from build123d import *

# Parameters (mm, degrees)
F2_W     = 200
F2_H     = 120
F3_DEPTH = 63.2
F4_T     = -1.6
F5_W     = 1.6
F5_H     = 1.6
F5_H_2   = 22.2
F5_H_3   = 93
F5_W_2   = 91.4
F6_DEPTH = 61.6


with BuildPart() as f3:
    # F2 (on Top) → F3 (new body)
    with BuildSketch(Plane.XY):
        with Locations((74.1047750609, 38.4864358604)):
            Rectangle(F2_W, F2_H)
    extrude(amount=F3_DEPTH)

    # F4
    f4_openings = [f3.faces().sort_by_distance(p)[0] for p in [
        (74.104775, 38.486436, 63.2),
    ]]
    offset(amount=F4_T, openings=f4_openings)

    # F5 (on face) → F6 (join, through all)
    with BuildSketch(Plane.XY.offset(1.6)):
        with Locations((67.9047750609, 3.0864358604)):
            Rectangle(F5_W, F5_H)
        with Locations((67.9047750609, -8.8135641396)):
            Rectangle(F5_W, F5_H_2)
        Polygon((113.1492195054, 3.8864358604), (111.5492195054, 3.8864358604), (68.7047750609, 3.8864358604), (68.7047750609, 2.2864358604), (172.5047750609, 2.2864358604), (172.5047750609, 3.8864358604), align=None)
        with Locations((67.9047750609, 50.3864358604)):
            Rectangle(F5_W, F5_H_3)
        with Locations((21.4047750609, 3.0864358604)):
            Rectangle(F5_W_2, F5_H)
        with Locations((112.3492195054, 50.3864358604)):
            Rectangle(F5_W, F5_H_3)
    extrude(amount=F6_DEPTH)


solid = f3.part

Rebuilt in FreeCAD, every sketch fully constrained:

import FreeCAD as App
import Part
import Sketcher

V = App.Vector
Q = App.Units.Quantity


def faces_at(feature, points):
    """Names of the faces that lie closest to the given points."""
    faces = feature.Shape.Faces
    near = lambda p: min(range(len(faces)), key=lambda i: faces[i].distToShape(Part.Vertex(*p))[0])
    return sorted({f"Face{near(p) + 1}" for p in points})


def add_polygon(sketch, points):
    """Adds a closed chain of lines whose ends are joined by coincident constraints."""
    first, n = sketch.GeometryCount, len(points)
    for a, b in zip(points, points[1:] + points[:1]):
        sketch.addGeometry(Part.LineSegment(App.Vector(*a, 0), App.Vector(*b, 0)), False)
    for i in range(n):
        sketch.addConstraint(Sketcher.Constraint("Coincident", first + i, 2, first + (i + 1) % n, 1))

doc = App.newDocument("Part")
body = doc.addObject("PartDesign::Body", "Body")

# Sketch on XY plane
sketch1 = body.newObject("Sketcher::SketchObject", "Sketch")
sketch1.AttachmentSupport = (doc.getObject("XY_Plane"), [""])
sketch1.MapMode = "FlatFace"
add_polygon(sketch1, [(-26, 98), (-26, -22), (174, -22), (174, 98)])  # lines 0-3
sketch1.addConstraint([
    Sketcher.Constraint("Vertical", 0),
    Sketcher.Constraint("Horizontal", 1),
    Sketcher.Constraint("Vertical", 2),
    Sketcher.Constraint("Horizontal", 3),
    Sketcher.Constraint("DistanceX", 1, 1, 1, 2, Q("200 mm")),
    Sketcher.Constraint("DistanceY", 0, 2, 0, 1, Q("120 mm")),
    Sketcher.Constraint("DistanceX", 0, 2, -1, 1, Q("25.895225 mm")),
    Sketcher.Constraint("DistanceY", 0, 2, -1, 1, Q("21.513564 mm")),
])
pad1 = body.newObject("PartDesign::Pad", "Pad")
pad1.Profile = sketch1
pad1.Length = 63.2
doc.recompute()

thickness = body.newObject("PartDesign::Thickness", "Thickness")
thickness.Base = (pad1, faces_at(pad1, [(74.105, 38.486, 63.2)]))
thickness.Value = 1.6
thickness.Reversed = True
thickness.Join = "Arc"

# Sketch on XY plane
sketch2 = body.newObject("Sketcher::SketchObject", "Sketch001")
sketch2.AttachmentSupport = (doc.getObject("XY_Plane"), [""])
sketch2.MapMode = "FlatFace"
sketch2.AttachmentOffset = App.Placement(V(0, 0, 1.6), App.Rotation())
add_polygon(sketch2, [(67.1, -19.9), (68.7, -19.9), (68.7, 2.3), (172.5, 2.3), (172.5, 3.9), (113.1, 3.9), (113.1, 96.9), (111.5, 96.9), (111.5, 3.9), (68.7, 3.9), (68.7, 96.9), (67.1, 96.9), (67.1, 3.9), (-24.3, 3.9), (-24.3, 2.3), (67.1, 2.3)])  # lines 0-15
sketch2.addConstraint([
    Sketcher.Constraint("Horizontal", 0),
    Sketcher.Constraint("Vertical", 1),
    Sketcher.Constraint("Horizontal", 2),
    Sketcher.Constraint("Vertical", 3),
    Sketcher.Constraint("Horizontal", 4),
    Sketcher.Constraint("Vertical", 5),
    Sketcher.Constraint("Horizontal", 6),
    Sketcher.Constraint("Vertical", 7),
    Sketcher.Constraint("Horizontal", 8),
    Sketcher.Constraint("Vertical", 9),
    Sketcher.Constraint("Horizontal", 10),
    Sketcher.Constraint("Vertical", 11),
    Sketcher.Constraint("Horizontal", 12),
    Sketcher.Constraint("Vertical", 13),
    Sketcher.Constraint("Horizontal", 14),
    Sketcher.Constraint("Vertical", 15),
    Sketcher.Constraint("Horizontal", 4, 2, 7, 2),
    Sketcher.Constraint("Horizontal", 6, 2, 9, 2),
    Sketcher.Constraint("Horizontal", 8, 2, 11, 2),
    Sketcher.Constraint("Horizontal", 2, 2, 13, 2),
    Sketcher.Constraint("Vertical", 1, 2, 8, 2),
    Sketcher.Constraint("Vertical", 11, 2, 14, 2),
    Sketcher.Constraint("Equal", 0, 6),
    Sketcher.Constraint("Equal", 10, 3),
    Sketcher.Constraint("DistanceY", 5, 1, 5, 2, Q("93 mm")),
    Sketcher.Constraint("DistanceX", 0, 1, 0, 2, Q("1.6 mm")),
    Sketcher.Constraint("DistanceX", 2, 1, 2, 2, Q("103.8 mm")),
    Sketcher.Constraint("DistanceX", 12, 2, 12, 1, Q("91.4 mm")),
    Sketcher.Constraint("DistanceY", 1, 1, 1, 2, Q("22.2 mm")),
    Sketcher.Constraint("DistanceX", 4, 2, 4, 1, Q("59.355556 mm")),
    Sketcher.Constraint("DistanceX", -1, 1, 4, 2, Q("113.14922 mm")),
    Sketcher.Constraint("DistanceY", 0, 2, -1, 1, Q("19.913564 mm")),
])
pad2 = body.newObject("PartDesign::Pad", "Pad001")
pad2.Profile = sketch2
pad2.Length = 61.6

doc.recompute()
